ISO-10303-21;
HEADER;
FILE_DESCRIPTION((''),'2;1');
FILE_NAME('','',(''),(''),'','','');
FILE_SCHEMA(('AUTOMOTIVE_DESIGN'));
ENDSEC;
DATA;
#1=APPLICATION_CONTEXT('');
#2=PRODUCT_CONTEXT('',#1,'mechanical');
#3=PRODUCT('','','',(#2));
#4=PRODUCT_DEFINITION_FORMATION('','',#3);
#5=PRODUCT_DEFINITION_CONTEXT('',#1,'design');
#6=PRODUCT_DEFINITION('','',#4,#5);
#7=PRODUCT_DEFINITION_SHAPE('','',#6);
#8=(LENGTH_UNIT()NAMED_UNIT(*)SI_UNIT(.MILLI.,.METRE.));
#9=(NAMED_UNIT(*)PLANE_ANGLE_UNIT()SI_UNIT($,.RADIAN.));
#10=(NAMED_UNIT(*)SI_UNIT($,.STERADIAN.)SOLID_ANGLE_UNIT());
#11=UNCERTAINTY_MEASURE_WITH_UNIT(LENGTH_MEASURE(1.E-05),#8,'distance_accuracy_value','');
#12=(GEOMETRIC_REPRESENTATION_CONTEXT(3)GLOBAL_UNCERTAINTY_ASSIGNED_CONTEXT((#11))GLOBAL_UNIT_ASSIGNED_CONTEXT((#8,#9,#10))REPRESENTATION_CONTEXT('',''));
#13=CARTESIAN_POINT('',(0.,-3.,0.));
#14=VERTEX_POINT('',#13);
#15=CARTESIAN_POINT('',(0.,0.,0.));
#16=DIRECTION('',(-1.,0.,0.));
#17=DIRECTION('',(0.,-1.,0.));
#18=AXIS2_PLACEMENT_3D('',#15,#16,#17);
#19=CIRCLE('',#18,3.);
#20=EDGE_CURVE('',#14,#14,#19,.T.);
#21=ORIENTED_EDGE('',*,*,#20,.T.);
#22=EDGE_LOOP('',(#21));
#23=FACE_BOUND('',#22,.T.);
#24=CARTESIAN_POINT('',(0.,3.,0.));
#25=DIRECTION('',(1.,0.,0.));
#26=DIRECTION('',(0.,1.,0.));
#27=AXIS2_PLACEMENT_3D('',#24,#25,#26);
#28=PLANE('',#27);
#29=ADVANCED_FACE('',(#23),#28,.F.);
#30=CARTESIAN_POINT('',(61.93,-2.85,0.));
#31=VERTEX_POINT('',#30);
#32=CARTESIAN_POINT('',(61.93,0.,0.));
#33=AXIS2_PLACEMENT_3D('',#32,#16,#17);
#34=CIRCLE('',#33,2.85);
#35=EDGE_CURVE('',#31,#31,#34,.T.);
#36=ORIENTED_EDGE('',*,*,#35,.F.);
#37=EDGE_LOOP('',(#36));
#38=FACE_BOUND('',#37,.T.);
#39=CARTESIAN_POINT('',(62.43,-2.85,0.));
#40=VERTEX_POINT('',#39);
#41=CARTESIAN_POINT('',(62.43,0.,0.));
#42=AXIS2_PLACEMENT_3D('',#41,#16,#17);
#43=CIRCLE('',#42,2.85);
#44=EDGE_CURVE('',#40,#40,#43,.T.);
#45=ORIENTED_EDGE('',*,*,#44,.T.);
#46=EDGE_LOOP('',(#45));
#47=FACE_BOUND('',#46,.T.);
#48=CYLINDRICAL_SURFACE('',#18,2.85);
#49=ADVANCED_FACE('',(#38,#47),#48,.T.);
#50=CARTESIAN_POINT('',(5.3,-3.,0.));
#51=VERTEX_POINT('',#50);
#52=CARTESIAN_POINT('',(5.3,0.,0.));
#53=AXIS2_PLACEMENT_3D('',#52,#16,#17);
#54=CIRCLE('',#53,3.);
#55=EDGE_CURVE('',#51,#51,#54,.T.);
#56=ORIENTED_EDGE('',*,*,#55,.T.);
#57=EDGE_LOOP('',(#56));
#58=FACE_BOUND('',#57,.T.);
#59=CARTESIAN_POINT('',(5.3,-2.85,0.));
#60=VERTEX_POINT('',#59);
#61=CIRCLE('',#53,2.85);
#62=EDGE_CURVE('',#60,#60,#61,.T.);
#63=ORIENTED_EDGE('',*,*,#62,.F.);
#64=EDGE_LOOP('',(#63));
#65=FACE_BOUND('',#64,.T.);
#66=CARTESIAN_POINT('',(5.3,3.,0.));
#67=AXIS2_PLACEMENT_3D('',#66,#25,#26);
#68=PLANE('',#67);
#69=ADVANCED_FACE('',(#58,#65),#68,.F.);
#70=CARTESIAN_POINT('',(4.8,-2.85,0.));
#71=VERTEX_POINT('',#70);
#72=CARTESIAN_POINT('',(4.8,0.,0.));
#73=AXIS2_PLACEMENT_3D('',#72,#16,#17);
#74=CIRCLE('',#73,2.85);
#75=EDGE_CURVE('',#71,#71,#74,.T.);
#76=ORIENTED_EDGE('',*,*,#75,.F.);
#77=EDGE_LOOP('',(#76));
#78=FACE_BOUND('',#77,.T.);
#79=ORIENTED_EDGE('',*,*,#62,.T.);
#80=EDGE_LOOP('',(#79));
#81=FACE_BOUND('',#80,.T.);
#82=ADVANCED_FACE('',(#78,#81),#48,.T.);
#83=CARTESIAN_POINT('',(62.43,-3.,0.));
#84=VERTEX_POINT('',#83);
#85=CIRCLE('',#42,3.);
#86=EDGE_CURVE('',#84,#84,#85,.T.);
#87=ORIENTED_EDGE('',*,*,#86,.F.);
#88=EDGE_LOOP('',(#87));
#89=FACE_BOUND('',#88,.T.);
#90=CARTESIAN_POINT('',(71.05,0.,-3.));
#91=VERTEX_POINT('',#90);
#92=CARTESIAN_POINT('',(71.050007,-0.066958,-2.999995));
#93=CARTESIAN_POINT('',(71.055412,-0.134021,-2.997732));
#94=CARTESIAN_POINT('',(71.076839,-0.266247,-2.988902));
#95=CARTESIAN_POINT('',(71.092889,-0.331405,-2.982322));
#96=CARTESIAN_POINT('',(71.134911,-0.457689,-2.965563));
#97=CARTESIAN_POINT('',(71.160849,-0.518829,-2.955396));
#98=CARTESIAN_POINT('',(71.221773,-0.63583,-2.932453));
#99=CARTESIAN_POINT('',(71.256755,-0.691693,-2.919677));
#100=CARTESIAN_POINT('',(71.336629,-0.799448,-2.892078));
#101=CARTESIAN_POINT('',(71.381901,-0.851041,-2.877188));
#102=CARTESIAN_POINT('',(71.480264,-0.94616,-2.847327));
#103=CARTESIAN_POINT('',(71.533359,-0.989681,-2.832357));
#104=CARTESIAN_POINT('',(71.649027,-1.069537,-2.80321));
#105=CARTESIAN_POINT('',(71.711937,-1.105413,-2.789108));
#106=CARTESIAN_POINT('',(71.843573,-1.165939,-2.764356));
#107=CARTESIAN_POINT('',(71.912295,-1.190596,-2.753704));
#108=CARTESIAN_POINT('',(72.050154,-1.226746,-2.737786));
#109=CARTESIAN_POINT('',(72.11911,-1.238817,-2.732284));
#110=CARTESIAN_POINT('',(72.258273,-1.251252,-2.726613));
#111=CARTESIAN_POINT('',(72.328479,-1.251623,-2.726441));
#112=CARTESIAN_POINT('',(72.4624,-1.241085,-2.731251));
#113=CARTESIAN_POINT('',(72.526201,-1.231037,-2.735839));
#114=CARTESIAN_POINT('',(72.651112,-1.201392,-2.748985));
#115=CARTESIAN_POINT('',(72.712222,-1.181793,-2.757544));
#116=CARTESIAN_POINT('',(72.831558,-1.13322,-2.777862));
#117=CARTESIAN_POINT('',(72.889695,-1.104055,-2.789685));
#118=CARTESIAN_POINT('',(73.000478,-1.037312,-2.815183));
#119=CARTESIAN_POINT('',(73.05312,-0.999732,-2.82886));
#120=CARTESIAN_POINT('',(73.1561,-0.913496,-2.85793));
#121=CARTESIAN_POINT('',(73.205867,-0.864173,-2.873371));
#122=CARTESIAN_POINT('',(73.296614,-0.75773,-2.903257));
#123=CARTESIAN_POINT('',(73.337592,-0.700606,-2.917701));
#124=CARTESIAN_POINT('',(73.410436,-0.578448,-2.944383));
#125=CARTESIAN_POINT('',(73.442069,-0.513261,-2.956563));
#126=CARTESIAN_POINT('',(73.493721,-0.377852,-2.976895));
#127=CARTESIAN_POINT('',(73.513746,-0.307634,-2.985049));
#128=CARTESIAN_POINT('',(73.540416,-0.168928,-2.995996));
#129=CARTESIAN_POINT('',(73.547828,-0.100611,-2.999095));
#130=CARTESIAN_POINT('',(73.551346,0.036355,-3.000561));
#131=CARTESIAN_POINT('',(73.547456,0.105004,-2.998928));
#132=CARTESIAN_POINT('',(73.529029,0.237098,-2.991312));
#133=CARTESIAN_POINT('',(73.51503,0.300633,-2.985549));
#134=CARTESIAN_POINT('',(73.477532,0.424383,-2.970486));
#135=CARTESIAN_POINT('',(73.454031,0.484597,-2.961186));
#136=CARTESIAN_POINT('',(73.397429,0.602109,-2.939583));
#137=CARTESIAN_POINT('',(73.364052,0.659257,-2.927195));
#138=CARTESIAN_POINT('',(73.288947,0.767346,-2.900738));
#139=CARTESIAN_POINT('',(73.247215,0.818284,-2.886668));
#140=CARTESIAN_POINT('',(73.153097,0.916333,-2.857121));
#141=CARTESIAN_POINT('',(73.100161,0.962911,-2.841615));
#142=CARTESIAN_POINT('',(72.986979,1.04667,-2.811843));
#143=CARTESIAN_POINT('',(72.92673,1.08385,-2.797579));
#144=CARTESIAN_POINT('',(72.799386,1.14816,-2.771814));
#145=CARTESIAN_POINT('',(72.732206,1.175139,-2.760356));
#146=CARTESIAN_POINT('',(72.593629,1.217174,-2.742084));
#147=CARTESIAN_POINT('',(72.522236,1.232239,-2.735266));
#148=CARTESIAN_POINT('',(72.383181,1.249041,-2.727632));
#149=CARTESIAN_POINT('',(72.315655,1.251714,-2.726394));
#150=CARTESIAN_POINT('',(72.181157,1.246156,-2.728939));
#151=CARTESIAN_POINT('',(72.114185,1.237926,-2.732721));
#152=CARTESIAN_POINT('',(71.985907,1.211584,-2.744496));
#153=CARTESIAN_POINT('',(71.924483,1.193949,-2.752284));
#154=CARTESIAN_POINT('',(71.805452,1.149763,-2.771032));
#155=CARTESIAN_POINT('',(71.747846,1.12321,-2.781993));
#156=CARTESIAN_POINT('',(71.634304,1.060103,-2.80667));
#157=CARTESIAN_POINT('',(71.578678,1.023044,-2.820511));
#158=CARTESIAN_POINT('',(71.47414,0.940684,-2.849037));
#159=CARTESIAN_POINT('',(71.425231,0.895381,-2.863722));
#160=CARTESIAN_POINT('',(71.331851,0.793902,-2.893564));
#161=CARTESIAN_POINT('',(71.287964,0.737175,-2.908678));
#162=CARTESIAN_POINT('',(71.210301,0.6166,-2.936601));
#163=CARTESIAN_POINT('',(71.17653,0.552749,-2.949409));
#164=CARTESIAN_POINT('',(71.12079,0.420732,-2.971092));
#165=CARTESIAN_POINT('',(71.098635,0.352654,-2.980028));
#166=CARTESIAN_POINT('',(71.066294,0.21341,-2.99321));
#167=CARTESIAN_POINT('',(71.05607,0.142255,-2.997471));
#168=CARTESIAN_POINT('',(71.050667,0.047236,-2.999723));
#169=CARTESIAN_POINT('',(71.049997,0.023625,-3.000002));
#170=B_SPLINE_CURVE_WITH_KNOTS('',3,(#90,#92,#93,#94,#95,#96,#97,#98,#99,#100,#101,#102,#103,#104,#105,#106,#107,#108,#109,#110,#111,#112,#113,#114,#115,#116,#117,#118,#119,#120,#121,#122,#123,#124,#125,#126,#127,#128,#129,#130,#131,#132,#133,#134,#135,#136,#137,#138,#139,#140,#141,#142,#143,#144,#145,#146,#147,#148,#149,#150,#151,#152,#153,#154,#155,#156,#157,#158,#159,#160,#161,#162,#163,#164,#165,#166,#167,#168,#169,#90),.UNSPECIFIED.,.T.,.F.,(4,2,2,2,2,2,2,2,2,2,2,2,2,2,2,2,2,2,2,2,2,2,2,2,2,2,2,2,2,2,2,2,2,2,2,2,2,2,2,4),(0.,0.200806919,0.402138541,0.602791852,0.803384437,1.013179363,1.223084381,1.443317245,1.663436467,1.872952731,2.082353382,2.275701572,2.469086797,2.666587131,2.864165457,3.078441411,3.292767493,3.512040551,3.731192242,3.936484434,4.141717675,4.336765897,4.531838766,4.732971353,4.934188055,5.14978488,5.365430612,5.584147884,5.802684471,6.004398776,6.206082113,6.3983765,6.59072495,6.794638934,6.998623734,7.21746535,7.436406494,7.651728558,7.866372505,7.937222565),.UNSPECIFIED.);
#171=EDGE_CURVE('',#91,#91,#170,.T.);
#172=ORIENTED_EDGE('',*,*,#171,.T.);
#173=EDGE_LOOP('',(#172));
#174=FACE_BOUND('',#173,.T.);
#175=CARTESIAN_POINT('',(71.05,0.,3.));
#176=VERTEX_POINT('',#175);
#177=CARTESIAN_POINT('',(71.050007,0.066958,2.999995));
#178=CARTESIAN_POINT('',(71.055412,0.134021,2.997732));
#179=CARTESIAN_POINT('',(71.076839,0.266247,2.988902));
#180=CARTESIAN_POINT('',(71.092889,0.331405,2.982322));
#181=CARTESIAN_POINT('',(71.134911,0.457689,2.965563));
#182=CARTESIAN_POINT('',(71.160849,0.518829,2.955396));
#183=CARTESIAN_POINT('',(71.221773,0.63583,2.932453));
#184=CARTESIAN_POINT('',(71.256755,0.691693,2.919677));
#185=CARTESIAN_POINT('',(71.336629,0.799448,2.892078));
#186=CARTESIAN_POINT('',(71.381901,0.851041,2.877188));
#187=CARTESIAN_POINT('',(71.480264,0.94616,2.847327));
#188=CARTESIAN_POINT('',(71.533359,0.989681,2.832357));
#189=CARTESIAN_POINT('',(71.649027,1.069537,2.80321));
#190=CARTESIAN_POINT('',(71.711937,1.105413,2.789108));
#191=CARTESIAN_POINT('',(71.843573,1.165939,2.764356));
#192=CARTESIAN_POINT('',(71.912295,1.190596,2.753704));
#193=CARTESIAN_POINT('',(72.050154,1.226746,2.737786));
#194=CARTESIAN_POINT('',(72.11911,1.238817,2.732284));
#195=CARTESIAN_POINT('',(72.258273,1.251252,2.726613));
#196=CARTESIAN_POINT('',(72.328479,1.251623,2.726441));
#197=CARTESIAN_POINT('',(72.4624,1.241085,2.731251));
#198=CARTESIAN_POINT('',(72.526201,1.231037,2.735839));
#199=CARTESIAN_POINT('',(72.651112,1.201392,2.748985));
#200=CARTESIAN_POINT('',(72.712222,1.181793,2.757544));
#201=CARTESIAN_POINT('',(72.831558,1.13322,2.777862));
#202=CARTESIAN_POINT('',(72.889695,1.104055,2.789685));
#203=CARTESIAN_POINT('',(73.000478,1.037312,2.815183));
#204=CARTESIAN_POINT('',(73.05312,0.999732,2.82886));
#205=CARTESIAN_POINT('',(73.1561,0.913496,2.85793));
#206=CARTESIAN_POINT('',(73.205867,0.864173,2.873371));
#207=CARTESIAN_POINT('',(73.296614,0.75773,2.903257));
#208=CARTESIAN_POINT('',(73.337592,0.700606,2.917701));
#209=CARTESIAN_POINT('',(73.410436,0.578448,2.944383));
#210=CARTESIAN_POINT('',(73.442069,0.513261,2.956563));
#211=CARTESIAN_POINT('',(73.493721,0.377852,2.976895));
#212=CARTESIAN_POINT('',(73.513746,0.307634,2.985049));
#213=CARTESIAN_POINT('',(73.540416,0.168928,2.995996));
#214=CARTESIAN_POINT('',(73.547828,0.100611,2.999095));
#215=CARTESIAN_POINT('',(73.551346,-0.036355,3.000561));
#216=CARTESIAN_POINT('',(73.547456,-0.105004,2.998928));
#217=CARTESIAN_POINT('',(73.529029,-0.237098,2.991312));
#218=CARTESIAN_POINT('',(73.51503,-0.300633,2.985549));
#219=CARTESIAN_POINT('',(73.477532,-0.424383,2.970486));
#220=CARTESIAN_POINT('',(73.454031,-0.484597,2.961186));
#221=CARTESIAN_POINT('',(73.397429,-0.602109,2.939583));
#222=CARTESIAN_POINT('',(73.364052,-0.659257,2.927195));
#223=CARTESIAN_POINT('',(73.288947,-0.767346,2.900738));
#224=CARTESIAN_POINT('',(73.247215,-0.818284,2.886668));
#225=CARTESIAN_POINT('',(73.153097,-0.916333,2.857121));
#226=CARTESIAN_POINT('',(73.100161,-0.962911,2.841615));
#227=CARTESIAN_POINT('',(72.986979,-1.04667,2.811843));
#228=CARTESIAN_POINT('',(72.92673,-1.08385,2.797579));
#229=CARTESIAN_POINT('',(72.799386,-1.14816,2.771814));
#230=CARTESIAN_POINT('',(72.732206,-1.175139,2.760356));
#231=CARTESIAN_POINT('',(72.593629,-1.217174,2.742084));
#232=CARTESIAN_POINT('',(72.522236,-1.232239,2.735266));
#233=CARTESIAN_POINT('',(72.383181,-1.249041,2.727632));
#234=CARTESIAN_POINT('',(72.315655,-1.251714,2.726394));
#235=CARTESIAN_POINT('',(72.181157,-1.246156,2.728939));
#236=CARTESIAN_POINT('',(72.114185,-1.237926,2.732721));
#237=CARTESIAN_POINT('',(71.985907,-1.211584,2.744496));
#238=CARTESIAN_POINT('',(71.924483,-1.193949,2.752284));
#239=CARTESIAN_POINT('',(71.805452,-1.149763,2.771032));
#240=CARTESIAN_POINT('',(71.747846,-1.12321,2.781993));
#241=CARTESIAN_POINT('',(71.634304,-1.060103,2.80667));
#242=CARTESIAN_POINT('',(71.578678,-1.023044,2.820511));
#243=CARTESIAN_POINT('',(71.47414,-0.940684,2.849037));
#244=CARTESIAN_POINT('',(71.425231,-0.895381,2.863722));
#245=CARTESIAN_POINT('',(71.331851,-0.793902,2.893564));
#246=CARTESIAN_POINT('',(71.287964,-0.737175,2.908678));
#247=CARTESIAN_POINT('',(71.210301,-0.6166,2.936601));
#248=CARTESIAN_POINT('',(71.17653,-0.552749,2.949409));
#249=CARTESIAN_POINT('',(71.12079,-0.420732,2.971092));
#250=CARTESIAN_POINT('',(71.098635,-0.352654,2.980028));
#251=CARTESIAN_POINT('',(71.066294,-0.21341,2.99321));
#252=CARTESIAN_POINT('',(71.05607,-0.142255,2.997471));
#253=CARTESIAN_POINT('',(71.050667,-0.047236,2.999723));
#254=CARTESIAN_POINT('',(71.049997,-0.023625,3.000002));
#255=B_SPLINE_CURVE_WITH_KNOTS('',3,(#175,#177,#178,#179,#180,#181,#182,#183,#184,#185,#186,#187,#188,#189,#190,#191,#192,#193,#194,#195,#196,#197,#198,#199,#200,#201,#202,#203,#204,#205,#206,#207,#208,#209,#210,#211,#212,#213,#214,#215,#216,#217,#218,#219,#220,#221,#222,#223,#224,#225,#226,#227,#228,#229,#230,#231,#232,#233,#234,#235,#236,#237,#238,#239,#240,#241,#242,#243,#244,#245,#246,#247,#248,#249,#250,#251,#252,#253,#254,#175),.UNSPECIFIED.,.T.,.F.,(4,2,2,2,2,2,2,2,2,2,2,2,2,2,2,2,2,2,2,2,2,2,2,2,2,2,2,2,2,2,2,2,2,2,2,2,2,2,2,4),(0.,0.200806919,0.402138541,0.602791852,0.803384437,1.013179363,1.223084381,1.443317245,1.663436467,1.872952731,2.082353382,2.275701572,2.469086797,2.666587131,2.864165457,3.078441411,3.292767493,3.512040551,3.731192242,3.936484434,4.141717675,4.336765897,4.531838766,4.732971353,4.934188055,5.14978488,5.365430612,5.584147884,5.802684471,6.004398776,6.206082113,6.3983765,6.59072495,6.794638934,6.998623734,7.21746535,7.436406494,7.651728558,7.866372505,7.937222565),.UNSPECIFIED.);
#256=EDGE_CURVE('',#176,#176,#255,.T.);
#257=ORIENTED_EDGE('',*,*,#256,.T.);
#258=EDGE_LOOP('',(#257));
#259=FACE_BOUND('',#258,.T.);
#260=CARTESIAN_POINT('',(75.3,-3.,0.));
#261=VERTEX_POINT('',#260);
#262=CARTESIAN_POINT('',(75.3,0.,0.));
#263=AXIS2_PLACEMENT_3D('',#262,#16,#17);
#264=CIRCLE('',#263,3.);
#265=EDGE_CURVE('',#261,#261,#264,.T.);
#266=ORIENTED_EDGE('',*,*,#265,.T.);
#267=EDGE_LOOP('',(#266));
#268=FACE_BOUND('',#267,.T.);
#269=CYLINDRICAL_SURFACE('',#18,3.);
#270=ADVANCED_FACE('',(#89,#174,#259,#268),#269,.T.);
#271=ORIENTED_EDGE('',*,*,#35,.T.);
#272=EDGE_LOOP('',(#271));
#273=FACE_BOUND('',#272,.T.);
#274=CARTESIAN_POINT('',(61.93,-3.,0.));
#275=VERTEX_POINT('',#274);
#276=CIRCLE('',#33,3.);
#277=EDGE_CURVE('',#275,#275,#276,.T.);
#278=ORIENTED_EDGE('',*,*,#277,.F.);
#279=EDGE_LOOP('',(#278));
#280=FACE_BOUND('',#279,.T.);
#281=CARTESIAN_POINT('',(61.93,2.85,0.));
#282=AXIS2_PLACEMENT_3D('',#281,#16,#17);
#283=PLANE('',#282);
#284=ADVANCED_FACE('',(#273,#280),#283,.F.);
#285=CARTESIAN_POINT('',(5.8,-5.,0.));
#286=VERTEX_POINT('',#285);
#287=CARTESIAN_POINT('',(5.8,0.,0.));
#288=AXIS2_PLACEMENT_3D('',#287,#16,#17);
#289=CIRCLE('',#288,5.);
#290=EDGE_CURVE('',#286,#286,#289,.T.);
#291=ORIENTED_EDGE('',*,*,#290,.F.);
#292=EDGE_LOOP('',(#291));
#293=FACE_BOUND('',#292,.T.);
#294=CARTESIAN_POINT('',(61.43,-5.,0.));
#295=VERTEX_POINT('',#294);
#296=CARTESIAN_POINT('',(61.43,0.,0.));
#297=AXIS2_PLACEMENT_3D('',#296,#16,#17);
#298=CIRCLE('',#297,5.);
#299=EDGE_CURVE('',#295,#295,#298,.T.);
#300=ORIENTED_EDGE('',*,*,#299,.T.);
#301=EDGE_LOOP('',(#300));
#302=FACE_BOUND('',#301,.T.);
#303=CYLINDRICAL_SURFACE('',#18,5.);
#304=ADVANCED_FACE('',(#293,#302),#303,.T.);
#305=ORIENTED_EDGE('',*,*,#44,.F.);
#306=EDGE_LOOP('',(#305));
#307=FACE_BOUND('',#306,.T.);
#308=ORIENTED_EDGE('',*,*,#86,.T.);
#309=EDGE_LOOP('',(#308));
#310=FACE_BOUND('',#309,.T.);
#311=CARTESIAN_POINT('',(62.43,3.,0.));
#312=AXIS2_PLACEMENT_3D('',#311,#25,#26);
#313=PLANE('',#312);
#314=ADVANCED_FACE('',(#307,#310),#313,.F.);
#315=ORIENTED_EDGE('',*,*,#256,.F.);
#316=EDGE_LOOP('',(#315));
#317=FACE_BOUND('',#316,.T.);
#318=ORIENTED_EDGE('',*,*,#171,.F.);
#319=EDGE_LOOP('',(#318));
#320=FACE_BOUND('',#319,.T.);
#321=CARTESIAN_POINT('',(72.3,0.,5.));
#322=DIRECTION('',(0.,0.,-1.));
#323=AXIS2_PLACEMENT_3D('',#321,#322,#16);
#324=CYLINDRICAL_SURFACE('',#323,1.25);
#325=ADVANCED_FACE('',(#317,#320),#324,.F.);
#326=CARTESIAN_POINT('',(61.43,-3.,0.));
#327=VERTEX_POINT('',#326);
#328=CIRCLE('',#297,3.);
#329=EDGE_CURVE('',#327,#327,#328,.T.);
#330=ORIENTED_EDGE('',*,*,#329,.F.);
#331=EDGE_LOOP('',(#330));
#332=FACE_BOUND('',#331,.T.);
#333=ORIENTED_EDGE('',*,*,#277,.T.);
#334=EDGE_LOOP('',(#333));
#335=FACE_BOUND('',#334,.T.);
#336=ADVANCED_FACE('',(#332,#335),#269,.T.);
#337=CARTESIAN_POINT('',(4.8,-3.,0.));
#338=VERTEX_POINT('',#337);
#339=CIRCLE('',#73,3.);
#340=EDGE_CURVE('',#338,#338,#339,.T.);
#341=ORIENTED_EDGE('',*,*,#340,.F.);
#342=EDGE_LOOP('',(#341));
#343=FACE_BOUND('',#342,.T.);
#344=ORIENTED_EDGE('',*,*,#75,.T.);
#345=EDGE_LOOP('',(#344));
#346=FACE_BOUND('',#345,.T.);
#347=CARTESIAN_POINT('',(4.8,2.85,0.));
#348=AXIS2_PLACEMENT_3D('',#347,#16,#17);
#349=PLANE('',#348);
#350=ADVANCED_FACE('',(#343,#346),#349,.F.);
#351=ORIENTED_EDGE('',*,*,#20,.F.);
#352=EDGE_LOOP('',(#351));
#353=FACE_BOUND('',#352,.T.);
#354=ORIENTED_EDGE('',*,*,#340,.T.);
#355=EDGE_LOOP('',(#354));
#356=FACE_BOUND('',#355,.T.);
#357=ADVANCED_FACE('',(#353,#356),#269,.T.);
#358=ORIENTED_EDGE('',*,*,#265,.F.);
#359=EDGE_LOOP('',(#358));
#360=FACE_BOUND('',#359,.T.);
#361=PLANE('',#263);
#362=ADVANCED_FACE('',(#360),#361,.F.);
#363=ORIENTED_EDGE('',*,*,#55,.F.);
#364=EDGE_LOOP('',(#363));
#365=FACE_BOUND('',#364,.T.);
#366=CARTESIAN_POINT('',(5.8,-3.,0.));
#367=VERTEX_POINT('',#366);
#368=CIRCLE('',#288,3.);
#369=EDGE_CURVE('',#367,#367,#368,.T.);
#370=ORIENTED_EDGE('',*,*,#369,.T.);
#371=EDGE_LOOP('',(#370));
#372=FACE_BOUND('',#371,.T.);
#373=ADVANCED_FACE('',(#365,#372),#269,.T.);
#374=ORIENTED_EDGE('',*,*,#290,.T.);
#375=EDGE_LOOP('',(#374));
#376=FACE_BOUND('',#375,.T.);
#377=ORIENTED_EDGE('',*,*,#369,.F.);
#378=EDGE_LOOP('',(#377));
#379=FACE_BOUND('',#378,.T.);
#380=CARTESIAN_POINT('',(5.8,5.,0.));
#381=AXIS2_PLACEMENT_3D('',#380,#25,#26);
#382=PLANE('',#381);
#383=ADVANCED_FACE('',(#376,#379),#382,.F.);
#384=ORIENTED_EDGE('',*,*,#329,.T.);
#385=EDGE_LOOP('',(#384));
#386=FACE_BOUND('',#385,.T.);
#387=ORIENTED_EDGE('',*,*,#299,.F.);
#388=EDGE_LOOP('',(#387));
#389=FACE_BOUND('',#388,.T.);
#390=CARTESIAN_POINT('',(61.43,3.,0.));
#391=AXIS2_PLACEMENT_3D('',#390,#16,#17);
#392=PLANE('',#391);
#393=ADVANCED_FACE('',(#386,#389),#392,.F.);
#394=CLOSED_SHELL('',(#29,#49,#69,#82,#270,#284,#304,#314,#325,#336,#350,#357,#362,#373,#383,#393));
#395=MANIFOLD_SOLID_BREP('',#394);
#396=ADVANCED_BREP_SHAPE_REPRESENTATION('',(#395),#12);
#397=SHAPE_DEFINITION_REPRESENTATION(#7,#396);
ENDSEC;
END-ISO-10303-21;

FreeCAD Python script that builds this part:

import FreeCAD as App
import Part
import Sketcher
from FreeCAD import Vector


def add_polygon(sketch, points):
    """Adds a closed chain of lines whose ends are joined by coincident constraints."""
    first, n = sketch.GeometryCount, len(points)
    for a, b in zip(points, points[1:] + points[:1]):
        sketch.addGeometry(Part.LineSegment(App.Vector(*a, 0), App.Vector(*b, 0)), False)
    for i in range(n):
        sketch.addConstraint(Sketcher.Constraint("Coincident", first + i, 2, first + (i + 1) % n, 1))

doc = App.newDocument("Part")
body = doc.addObject("PartDesign::Body", "Body")

# Sketch on XY plane
sketch1 = body.newObject("Sketcher::SketchObject", "Sketch")
sketch1.AttachmentSupport = (doc.getObject("XY_Plane"), [""])
sketch1.MapMode = "FlatFace"
add_polygon(sketch1, [(0, 0), (75.3, 0), (75.3, 3), (62.43, 3), (62.43, 2.85), (61.93, 2.85), (61.93, 3), (61.43, 3), (61.43, 5), (5.8, 5), (5.8, 3), (5.3, 3), (5.3, 2.85), (4.8, 2.85), (4.8, 3), (0, 3)])  # lines 0-15
sketch1.addConstraint(Sketcher.Constraint("Horizontal", 0))
sketch1.addConstraint(Sketcher.Constraint("Vertical", 1))
sketch1.addConstraint(Sketcher.Constraint("Horizontal", 2))
sketch1.addConstraint(Sketcher.Constraint("Vertical", 3))
sketch1.addConstraint(Sketcher.Constraint("Horizontal", 4))
sketch1.addConstraint(Sketcher.Constraint("Vertical", 5))
sketch1.addConstraint(Sketcher.Constraint("Horizontal", 6))
sketch1.addConstraint(Sketcher.Constraint("Vertical", 7))
sketch1.addConstraint(Sketcher.Constraint("Horizontal", 8))
sketch1.addConstraint(Sketcher.Constraint("Vertical", 9))
sketch1.addConstraint(Sketcher.Constraint("Horizontal", 10))
sketch1.addConstraint(Sketcher.Constraint("Vertical", 11))
sketch1.addConstraint(Sketcher.Constraint("Horizontal", 12))
sketch1.addConstraint(Sketcher.Constraint("Vertical", 13))
sketch1.addConstraint(Sketcher.Constraint("Horizontal", 14))
sketch1.addConstraint(Sketcher.Constraint("Vertical", 15))
sketch1.addConstraint(Sketcher.Constraint("Coincident", 15, 2, -1, 1))
sketch1.addConstraint(Sketcher.Constraint("Horizontal", 2, 2, 5, 2))
sketch1.addConstraint(Sketcher.Constraint("Horizontal", 6, 2, 9, 2))
sketch1.addConstraint(Sketcher.Constraint("Horizontal", 4, 2, 11, 2))
sketch1.addConstraint(Sketcher.Constraint("Horizontal", 10, 2, 13, 2))
sketch1.addConstraint(Sketcher.Constraint("Equal", 4, 6))
sketch1.addConstraint(Sketcher.Constraint("Equal", 6, 10))
sketch1.addConstraint(Sketcher.Constraint("Equal", 10, 12))
sketch1.addConstraint(Sketcher.Constraint("DistanceY", 1, 1, 1, 2, 3.0))
sketch1.addConstraint(Sketcher.Constraint("DistanceY", 7, 1, 7, 2, 2.0))
sketch1.addConstraint(Sketcher.Constraint("DistanceX", 0, 1, 0, 2, 75.3))
sketch1.addConstraint(Sketcher.Constraint("DistanceX", 4, 2, 4, 1, 0.5))
sketch1.addConstraint(Sketcher.Constraint("DistanceX", 14, 2, 14, 1, 4.8))
sketch1.addConstraint(Sketcher.Constraint("DistanceX", 2, 2, 2, 1, 12.87))
sketch1.addConstraint(Sketcher.Constraint("DistanceY", 3, 2, 3, 1, 0.15))
revolution = body.newObject("PartDesign::Revolution", "Revolution")
revolution.Profile = sketch1
revolution.ReferenceAxis = (sketch1, ["H_Axis"])
revolution.Angle = 360

# Sketch on XY plane
sketch2 = body.newObject("Sketcher::SketchObject", "Sketch001")
sketch2.AttachmentSupport = (doc.getObject("XY_Plane"), [""])
sketch2.MapMode = "FlatFace"
sketch2.addGeometry(Part.Circle(Vector(72.3, 0, 0), Vector(0, 0, 1), 1.2), False)
sketch2.addConstraint(Sketcher.Constraint("PointOnObject", 0, 3, -1))
sketch2.addConstraint(Sketcher.Constraint("Diameter", 0, 2.5))
sketch2.addConstraint(Sketcher.Constraint("DistanceX", -1, 1, 0, 3, 72.3))
pocket1 = body.newObject("PartDesign::Pocket", "Pocket")
pocket1.Profile = sketch2
pocket1.Length = 10
pocket1.Midplane = True

doc.recompute()
